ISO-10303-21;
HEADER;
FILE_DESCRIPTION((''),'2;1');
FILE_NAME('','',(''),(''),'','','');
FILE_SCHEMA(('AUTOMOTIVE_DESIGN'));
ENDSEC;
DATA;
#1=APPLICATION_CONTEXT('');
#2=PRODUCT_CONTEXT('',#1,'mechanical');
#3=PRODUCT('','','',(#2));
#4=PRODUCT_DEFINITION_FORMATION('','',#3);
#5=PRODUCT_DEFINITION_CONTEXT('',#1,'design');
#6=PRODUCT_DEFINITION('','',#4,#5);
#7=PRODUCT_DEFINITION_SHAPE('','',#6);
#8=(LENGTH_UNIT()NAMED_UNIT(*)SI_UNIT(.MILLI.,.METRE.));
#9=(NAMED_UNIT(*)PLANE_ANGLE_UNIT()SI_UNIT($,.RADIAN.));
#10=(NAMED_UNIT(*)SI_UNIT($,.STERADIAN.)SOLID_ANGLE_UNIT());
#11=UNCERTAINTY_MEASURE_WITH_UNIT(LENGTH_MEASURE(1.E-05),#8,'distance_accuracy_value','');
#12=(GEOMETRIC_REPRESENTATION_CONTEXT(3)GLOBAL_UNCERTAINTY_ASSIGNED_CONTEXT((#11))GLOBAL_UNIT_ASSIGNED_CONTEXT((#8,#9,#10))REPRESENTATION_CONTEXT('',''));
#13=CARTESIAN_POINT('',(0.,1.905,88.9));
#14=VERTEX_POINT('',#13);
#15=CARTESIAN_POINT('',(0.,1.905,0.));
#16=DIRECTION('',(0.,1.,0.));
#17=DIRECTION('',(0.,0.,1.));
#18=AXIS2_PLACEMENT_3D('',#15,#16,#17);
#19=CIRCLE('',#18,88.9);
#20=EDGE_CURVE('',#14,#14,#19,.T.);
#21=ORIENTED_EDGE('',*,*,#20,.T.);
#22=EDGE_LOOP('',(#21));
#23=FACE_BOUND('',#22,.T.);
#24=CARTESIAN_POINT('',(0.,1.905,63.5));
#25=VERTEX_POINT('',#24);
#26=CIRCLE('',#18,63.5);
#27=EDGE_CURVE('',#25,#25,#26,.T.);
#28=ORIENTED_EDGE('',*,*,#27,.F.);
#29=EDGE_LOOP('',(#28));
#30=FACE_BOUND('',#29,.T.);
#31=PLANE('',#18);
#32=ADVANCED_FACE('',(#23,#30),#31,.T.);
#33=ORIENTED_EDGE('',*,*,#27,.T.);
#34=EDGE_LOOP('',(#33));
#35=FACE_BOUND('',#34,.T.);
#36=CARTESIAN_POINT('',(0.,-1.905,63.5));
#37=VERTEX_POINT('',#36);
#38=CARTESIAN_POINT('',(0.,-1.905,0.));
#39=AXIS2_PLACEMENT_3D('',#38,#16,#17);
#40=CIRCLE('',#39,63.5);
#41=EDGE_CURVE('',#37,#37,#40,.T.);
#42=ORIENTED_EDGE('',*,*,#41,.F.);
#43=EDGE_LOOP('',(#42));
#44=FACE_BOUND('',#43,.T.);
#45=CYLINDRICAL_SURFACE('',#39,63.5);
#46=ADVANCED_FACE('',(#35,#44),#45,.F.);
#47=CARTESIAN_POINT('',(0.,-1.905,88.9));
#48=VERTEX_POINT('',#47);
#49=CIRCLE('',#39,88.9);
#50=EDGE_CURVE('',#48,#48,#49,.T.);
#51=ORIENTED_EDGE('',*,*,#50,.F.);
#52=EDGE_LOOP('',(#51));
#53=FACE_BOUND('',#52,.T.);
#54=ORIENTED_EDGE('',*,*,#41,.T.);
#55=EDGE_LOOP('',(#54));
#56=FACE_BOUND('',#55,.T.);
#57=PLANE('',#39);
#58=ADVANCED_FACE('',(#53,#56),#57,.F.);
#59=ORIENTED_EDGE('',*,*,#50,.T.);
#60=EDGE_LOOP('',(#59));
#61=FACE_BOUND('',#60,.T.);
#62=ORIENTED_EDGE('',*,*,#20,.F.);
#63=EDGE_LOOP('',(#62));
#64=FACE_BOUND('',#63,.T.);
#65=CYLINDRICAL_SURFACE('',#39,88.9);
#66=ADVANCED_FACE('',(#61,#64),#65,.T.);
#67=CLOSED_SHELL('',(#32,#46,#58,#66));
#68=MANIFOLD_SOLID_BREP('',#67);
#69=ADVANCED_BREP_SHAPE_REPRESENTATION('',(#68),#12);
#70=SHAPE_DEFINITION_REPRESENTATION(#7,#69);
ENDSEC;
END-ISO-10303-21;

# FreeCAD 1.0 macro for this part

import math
import FreeCAD as App
import Part
import Sketcher
from FreeCAD import Vector
Q = App.Units.Quantity

doc = App.newDocument("Part")
body = doc.addObject("PartDesign::Body", "Body")

# Sketch on XZ plane
sketch1 = body.newObject("Sketcher::SketchObject", "Sketch")
sketch1.AttachmentSupport = (doc.getObject("XZ_Plane"), [""])
sketch1.MapMode = "FlatFace"
sketch1.addGeometry(Part.ArcOfCircle(Part.Circle(Vector(0, 0, 0), Vector(0, 0, 1), 88.9), math.radians(-87.953287), math.radians(-2.046713)), False)
sketch1.addGeometry(Part.ArcOfCircle(Part.Circle(Vector(0, 0.000001, 0), Vector(0, 0, 1), 88.900001), math.radians(-92.046713), math.radians(-87.953287)), False)
sketch1.addGeometry(Part.ArcOfCircle(Part.Circle(Vector(0, 0, 0), Vector(0, 0, 1), 88.9), math.radians(-177.953287), math.radians(-92.046713)), False)
sketch1.addGeometry(Part.ArcOfCircle(Part.Circle(Vector(0.000001, 0, 0), Vector(0, 0, 1), 88.900001), math.radians(177.953287), math.radians(182.046713)), False)
sketch1.addGeometry(Part.ArcOfCircle(Part.Circle(Vector(0, 0, 0), Vector(0, 0, 1), 88.9), math.radians(92.046713), math.radians(177.953287)), False)
sketch1.addGeometry(Part.ArcOfCircle(Part.Circle(Vector(0, -0.000001, 0), Vector(0, 0, 1), 88.900001), math.radians(87.953287), math.radians(92.046713)), False)
sketch1.addGeometry(Part.ArcOfCircle(Part.Circle(Vector(0, 0, 0), Vector(0, 0, 1), 88.9), math.radians(2.046713), math.radians(87.953287)), False)
sketch1.addGeometry(Part.ArcOfCircle(Part.Circle(Vector(-0.000003, 0, 0), Vector(0, 0, 1), 88.900003), math.radians(0), math.radians(2.046713)), False)
sketch1.addGeometry(Part.ArcOfCircle(Part.Circle(Vector(-0.000003, 0, 0), Vector(0, 0, 1), 88.900003), math.radians(-2.046713), math.radians(0)), False)
sketch1.addGeometry(Part.Circle(Vector(0, 0, 0), Vector(0, 0, 1), 63.5), False)
sketch1.addConstraint(Sketcher.Constraint("Tangent", 0, 1, 1, 2))
sketch1.addConstraint(Sketcher.Constraint("Tangent", 1, 1, 2, 2))
sketch1.addConstraint(Sketcher.Constraint("Tangent", 2, 1, 3, 2))
sketch1.addConstraint(Sketcher.Constraint("Tangent", 3, 1, 4, 2))
sketch1.addConstraint(Sketcher.Constraint("Tangent", 4, 1, 5, 2))
sketch1.addConstraint(Sketcher.Constraint("Tangent", 5, 1, 6, 2))
sketch1.addConstraint(Sketcher.Constraint("Tangent", 6, 1, 7, 2))
sketch1.addConstraint(Sketcher.Constraint("Tangent", 7, 1, 8, 2))
sketch1.addConstraint(Sketcher.Constraint("Tangent", 8, 1, 0, 2))
sketch1.addConstraint(Sketcher.Constraint("Coincident", 0, 3, -1, 1))
sketch1.addConstraint(Sketcher.Constraint("Coincident", 2, 3, -1, 1))
sketch1.addConstraint(Sketcher.Constraint("Coincident", 4, 3, -1, 1))
sketch1.addConstraint(Sketcher.Constraint("Coincident", 7, 3, -1, 1))
sketch1.addConstraint(Sketcher.Constraint("Coincident", 9, 3, -1, 1))
sketch1.addConstraint(Sketcher.Constraint("PointOnObject", 7, 1, -1))
sketch1.addConstraint(Sketcher.Constraint("Horizontal", 0, 1, 1, 1))
sketch1.addConstraint(Sketcher.Constraint("Horizontal", 4, 1, 5, 1))
sketch1.addConstraint(Sketcher.Constraint("Horizontal", 3, 1, 6, 1))
sketch1.addConstraint(Sketcher.Constraint("Horizontal", 2, 1, 8, 1))
sketch1.addConstraint(Sketcher.Constraint("Vertical", 2, 1, 3, 1))
sketch1.addConstraint(Sketcher.Constraint("Vertical", 1, 1, 4, 1))
sketch1.addConstraint(Sketcher.Constraint("Diameter", 9, Q("5 in")))
sketch1.addConstraint(Sketcher.Constraint("Radius", 0, Q("3.5 in")))
sketch1.addConstraint(Sketcher.Constraint("DistanceX", 1, 1, 0, 1, Q("0.25 in")))
sketch1.addConstraint(Sketcher.Constraint("DistanceY", 2, 1, 3, 1, Q("0.25 in")))
pad1 = body.newObject("PartDesign::Pad", "Pad")
pad1.Profile = sketch1
pad1.Type = "TwoLengths"
pad1.Length = Q("0.075 in")
pad1.Length2 = Q("0.075 in")
pad1.Reversed = True

doc.recompute()
